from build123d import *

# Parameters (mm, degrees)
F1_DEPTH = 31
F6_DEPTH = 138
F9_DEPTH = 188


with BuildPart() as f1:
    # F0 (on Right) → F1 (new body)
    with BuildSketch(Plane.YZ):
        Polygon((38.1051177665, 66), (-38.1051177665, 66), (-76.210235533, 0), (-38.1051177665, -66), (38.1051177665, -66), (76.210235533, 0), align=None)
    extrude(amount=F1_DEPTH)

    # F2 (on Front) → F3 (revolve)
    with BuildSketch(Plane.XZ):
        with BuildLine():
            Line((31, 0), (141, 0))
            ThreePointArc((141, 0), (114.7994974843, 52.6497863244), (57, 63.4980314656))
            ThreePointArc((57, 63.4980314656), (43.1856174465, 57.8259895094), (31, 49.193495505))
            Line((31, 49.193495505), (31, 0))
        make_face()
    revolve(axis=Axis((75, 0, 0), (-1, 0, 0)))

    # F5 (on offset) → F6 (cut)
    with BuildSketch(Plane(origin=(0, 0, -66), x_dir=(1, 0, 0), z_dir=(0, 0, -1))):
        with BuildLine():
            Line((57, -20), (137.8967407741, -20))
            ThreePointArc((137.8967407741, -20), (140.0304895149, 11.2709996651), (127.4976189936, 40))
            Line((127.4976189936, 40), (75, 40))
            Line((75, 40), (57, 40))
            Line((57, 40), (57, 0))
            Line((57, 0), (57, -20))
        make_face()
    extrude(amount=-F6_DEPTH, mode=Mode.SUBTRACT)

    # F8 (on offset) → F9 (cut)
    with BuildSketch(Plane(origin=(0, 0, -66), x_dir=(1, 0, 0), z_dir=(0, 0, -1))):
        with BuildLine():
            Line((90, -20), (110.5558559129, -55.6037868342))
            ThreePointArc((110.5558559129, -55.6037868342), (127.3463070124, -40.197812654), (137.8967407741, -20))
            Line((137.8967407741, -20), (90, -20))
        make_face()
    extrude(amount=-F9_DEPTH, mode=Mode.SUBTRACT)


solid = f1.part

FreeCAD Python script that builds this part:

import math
import FreeCAD as App
import Part
import Sketcher
from FreeCAD import Vector
Q = App.Units.Quantity


def add_polygon(sketch, points):
    """Adds a closed chain of lines whose ends are joined by coincident constraints."""
    first, n = sketch.GeometryCount, len(points)
    for a, b in zip(points, points[1:] + points[:1]):
        sketch.addGeometry(Part.LineSegment(App.Vector(*a, 0), App.Vector(*b, 0)), False)
    for i in range(n):
        sketch.addConstraint(Sketcher.Constraint("Coincident", first + i, 2, first + (i + 1) % n, 1))

doc = App.newDocument("Part")
body = doc.addObject("PartDesign::Body", "Body")

sketch1 = doc.addObject("Sketcher::SketchObject", "Sketch")
body.addObject(sketch1)
sketch1.AttachmentSupport = (doc.YZ_Plane, [""])
sketch1.MapMode = "FlatFace"
add_polygon(sketch1, [(38, 66), (-38, 66), (-76, 0), (-38, -66), (38, -66), (76, 0)])
sketch1.addConstraint([
    Sketcher.Constraint("Horizontal", 0),
    Sketcher.Constraint("Horizontal", 3),
    Sketcher.Constraint("Symmetric", 0, 2, 3, 2, -1, 1),
    Sketcher.Constraint("Symmetric", 1, 2, 4, 2, -1, 1),
    Sketcher.Constraint("PointOnObject", 1, 2, -1),
    Sketcher.Constraint("Parallel", 2, 5),
    Sketcher.Constraint("Vertical", 0, 2, 2, 2),
    Sketcher.Constraint("Angle", 1, Q("-120 deg")),
    Sketcher.Constraint("DistanceY", -1, 1, 0, 2, 66.0),
    Sketcher.Constraint("DistanceX", 0, 2, 0, 1, 76.210236),
])
pad1 = doc.addObject("PartDesign::Pad", "Pad")
body.addObject(pad1)
pad1.Profile = sketch1
pad1.Length = 31

sketch2 = doc.addObject("Sketcher::SketchObject", "Sketch001")
body.addObject(sketch2)
sketch2.AttachmentSupport = (doc.XZ_Plane, [""])
sketch2.MapMode = "FlatFace"
sketch2.addGeometry([
    Part.LineSegment(Vector(31, 0, 0), Vector(141, 0, 0)),
    Part.ArcOfCircle(Part.Circle(Vector(75, 0, 0), Vector(0, 0, 1), 66), math.radians(0), math.radians(106)),
    Part.ArcOfCircle(Part.Circle(Vector(75, 0, 0), Vector(0, 0, 1), 66), math.radians(106), math.radians(132)),
    Part.LineSegment(Vector(31, 49, 0), Vector(31, 0, 0)),
], False)
sketch2.addConstraint([
    Sketcher.Constraint("Coincident", 0, 2, 1, 1),
    Sketcher.Constraint("Tangent", 1, 2, 2, 1),
    Sketcher.Constraint("Coincident", 2, 2, 3, 1),
    Sketcher.Constraint("Coincident", 3, 2, 0, 1),
    Sketcher.Constraint("Horizontal", 0),
    Sketcher.Constraint("Vertical", 3),
    Sketcher.Constraint("Equal", 1, 2),
    Sketcher.Constraint("PointOnObject", 1, 3, -1),
    Sketcher.Constraint("PointOnObject", 0, 2, -1),
    Sketcher.Constraint("Radius", 1, 66.0),
    Sketcher.Constraint("DistanceX", 0, 1, 0, 2, 110.0),
    Sketcher.Constraint("DistanceX", -1, 1, 1, 3, 75.0),
    Sketcher.Constraint("DistanceX", -1, 1, 1, 2, 57.0),
])
revolution = doc.addObject("PartDesign::Revolution", "Revolution")
body.addObject(revolution)
revolution.Profile = sketch2
revolution.ReferenceAxis = (sketch2, ["H_Axis"])
revolution.Angle = 360

sketch3 = doc.addObject("Sketcher::SketchObject", "Sketch002")
body.addObject(sketch3)
sketch3.AttachmentSupport = (doc.XY_Plane, [""])
sketch3.MapMode = "FlatFace"
sketch3.AttachmentOffset = App.Placement(Vector(0, 0, -66), App.Rotation())
sketch3.addGeometry([
    Part.LineSegment(Vector(57, 20, 0), Vector(138, 20, 0)),
    Part.ArcOfCircle(Part.Circle(Vector(75, 0, 0), Vector(0, 0, 1), 66), math.radians(-37), math.radians(18)),
    Part.LineSegment(Vector(127, -40, 0), Vector(57, -40, 0)),
    Part.LineSegment(Vector(57, -40, 0), Vector(57, 20, 0)),
], False)
sketch3.addConstraint([
    Sketcher.Constraint("Coincident", 0, 2, 1, 2),
    Sketcher.Constraint("Coincident", 1, 1, 2, 1),
    Sketcher.Constraint("Coincident", 2, 2, 3, 1),
    Sketcher.Constraint("Coincident", 3, 2, 0, 1),
    Sketcher.Constraint("Horizontal", 0),
    Sketcher.Constraint("Horizontal", 2),
    Sketcher.Constraint("Vertical", 3),
    Sketcher.Constraint("PointOnObject", 1, 3, -1),
    Sketcher.Constraint("Radius", 1, 66.0),
    Sketcher.Constraint("DistanceY", 3, 1, 3, 2, 60.0),
    Sketcher.Constraint("DistanceX", -1, 1, 1, 3, 75.0),
    Sketcher.Constraint("DistanceY", -1, 1, 0, 2, 20.0),
    Sketcher.Constraint("DistanceX", -1, 1, 2, 2, 57.0),
])
pocket1 = doc.addObject("PartDesign::Pocket", "Pocket")
body.addObject(pocket1)
pocket1.Profile = sketch3
pocket1.Length = 138
pocket1.Reversed = True

sketch4 = doc.addObject("Sketcher::SketchObject", "Sketch003")
body.addObject(sketch4)
sketch4.AttachmentSupport = (doc.XY_Plane, [""])
sketch4.MapMode = "FlatFace"
sketch4.AttachmentOffset = App.Placement(Vector(0, 0, -66), App.Rotation())
sketch4.addGeometry([
    Part.LineSegment(Vector(90, 20, 0), Vector(111, 56, 0)),
    Part.ArcOfCircle(Part.Circle(Vector(75, 0, 0), Vector(0, 0, 1), 66), math.radians(18), math.radians(57)),
    Part.LineSegment(Vector(138, 20, 0), Vector(90, 20, 0)),
], False)
sketch4.addConstraint([
    Sketcher.Constraint("Coincident", 0, 2, 1, 2),
    Sketcher.Constraint("Coincident", 1, 1, 2, 1),
    Sketcher.Constraint("Coincident", 2, 2, 0, 1),
    Sketcher.Constraint("Horizontal", 2),
    Sketcher.Constraint("PointOnObject", 1, 3, -1),
    Sketcher.Constraint("Radius", 1, 66.0),
    Sketcher.Constraint("Angle", 0, Q("60 deg")),
    Sketcher.Constraint("DistanceX", -1, 1, 1, 3, 75.0),
    Sketcher.Constraint("DistanceY", -1, 1, 1, 1, 20.0),
    Sketcher.Constraint("DistanceX", -1, 1, 2, 2, 90.0),
])
pocket2 = doc.addObject("PartDesign::Pocket", "Pocket001")
body.addObject(pocket2)
pocket2.Profile = sketch4
pocket2.Length = 188
pocket2.Reversed = True

doc.recompute()
